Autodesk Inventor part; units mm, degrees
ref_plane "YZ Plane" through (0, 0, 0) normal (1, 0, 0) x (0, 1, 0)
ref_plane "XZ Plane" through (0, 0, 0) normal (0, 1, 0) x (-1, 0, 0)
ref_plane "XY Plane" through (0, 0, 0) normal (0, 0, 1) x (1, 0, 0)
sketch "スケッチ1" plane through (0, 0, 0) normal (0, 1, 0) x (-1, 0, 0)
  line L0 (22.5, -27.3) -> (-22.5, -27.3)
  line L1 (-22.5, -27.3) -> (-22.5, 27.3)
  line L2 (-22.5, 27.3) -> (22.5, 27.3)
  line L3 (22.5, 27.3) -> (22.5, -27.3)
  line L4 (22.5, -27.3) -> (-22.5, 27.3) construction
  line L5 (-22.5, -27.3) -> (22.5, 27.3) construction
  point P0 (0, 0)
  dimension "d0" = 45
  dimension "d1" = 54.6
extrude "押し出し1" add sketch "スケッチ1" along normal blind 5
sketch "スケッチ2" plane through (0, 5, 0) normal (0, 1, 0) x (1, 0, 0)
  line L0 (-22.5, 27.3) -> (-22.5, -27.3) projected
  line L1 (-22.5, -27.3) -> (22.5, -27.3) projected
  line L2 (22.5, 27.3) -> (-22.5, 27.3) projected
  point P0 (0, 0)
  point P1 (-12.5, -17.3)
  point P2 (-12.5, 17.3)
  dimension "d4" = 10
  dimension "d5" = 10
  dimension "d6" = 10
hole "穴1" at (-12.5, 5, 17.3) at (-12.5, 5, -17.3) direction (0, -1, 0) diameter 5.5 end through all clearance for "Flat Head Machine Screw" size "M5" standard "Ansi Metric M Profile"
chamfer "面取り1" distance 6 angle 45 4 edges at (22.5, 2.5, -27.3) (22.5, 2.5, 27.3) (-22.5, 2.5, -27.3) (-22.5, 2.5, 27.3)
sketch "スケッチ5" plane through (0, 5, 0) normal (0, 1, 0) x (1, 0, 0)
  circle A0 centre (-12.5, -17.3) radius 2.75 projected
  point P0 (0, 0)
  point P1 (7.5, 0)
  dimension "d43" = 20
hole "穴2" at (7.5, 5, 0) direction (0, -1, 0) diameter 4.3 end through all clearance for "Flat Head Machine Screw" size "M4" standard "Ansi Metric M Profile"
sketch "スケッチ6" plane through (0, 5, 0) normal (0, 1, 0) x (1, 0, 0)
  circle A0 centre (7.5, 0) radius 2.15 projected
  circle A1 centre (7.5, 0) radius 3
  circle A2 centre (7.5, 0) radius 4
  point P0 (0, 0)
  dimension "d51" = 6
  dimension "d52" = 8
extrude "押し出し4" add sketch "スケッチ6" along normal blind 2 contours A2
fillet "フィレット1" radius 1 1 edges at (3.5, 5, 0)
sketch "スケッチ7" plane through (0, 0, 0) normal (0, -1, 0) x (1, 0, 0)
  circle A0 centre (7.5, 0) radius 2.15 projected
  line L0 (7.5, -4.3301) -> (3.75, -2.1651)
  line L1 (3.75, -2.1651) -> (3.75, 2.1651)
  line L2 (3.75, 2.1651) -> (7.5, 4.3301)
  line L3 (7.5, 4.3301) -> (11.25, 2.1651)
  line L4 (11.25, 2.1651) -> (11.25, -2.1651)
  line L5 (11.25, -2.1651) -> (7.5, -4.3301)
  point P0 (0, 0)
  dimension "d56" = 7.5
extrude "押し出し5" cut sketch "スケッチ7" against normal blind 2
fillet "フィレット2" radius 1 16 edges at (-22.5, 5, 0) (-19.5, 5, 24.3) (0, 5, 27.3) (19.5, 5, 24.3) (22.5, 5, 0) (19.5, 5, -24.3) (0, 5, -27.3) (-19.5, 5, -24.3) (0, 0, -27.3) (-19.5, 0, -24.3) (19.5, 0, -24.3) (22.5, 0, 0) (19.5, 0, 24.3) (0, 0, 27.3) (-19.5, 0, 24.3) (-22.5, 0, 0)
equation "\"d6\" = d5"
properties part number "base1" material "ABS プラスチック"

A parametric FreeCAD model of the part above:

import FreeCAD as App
import Part
import Sketcher
from FreeCAD import Vector
Q = App.Units.Quantity


def edges_at(feature, points):
    """Names of the edges that pass closest to the given points."""
    edges = feature.Shape.Edges
    near = lambda p: min(range(len(edges)), key=lambda i: edges[i].distToShape(Part.Vertex(*p))[0])
    return sorted({f"Edge{near(p) + 1}" for p in points})

doc = App.newDocument("Part")
params = doc.addObject("Spreadsheet::Sheet", "Params")
for row, (alias, value) in enumerate([
    ("sketch1_width", "45 mm"),
    ("sketch1_height", "54.6 mm"),
    ("pad1_length", "5 mm"),
    ("sketch2_diameter", "5.5 mm"),
    ("hole_diameter", "5.5 mm"),
    ("chamfer_size", "6 mm"),
    ("sketch3_diameter", "4.3 mm"),
    ("hole2_diameter", "4.3 mm"),
    ("sketch4_diameter", "8 mm"),
    ("sketch4_diameter2", "6 mm"),
    ("pad2_length", "2 mm"),
    ("fillet_radius", "1 mm"),
    ("sketch5_diameter", "4.3 mm"),
    ("pocket1_length", "2 mm"),
    ("fillet2_radius", "1 mm"),
], start=1):
    params.set(f"A{row}", alias)
    params.set(f"B{row}", "=" + value)
    params.setAlias(f"B{row}", alias)

body = doc.addObject("PartDesign::Body", "Body")

# Sketch on XZ plane
sketch1 = body.newObject("Sketcher::SketchObject", "Sketch")
sketch1.AttachmentSupport = (doc.getObject("XZ_Plane"), [""])
sketch1.MapMode = "FlatFace"
sketch1.addGeometry([
    Part.LineSegment(Vector(22, -27, 0), Vector(-22, -27, 0)),
    Part.LineSegment(Vector(-22, -27, 0), Vector(-22, 27, 0)),
    Part.LineSegment(Vector(-22, 27, 0), Vector(22, 27, 0)),
    Part.LineSegment(Vector(22, 27, 0), Vector(22, -27, 0)),
], False)
sketch1.addConstraint([
    Sketcher.Constraint("Coincident", 0, 2, 1, 1),
    Sketcher.Constraint("Coincident", 1, 2, 2, 1),
    Sketcher.Constraint("Coincident", 2, 2, 3, 1),
    Sketcher.Constraint("Coincident", 3, 2, 0, 1),
    Sketcher.Constraint("Horizontal", 0),
    Sketcher.Constraint("Vertical", 1),
    Sketcher.Constraint("Horizontal", 2),
    Sketcher.Constraint("Vertical", 3),
    Sketcher.Constraint("Symmetric", 0, 2, 2, 2, -1, 1),
    Sketcher.Constraint("DistanceX", 0, 2, 0, 1, Q("45 mm")),
    Sketcher.Constraint("DistanceY", 1, 1, 1, 2, Q("54.6 mm")),
])
sketch1.setExpression("Constraints[9]", "Params.sketch1_width")
sketch1.setExpression("Constraints[10]", "Params.sketch1_height")
pad1 = body.newObject("PartDesign::Pad", "Pad")
pad1.Profile = sketch1
pad1.setExpression("Length", "Params.pad1_length")
pad1.Reversed = True

# Sketch on XZ plane
sketch2 = body.newObject("Sketcher::SketchObject", "Sketch001")
sketch2.AttachmentSupport = (doc.getObject("XZ_Plane"), [""])
sketch2.MapMode = "FlatFace"
sketch2.AttachmentOffset = App.Placement(Vector(0, 0, -5), App.Rotation())
sketch2.addGeometry([
    Part.Circle(Vector(-12.5, 17.3, 0), Vector(0, 0, 1), 2.8),
    Part.Circle(Vector(-12.5, -17.3, 0), Vector(0, 0, 1), 2.8),
], False)
sketch2.addConstraint([
    Sketcher.Constraint("Equal", 0, 1),
    Sketcher.Constraint("Symmetric", 0, 3, 1, 3, -1),
    Sketcher.Constraint("Diameter", 0, Q("5.5 mm")),
    Sketcher.Constraint("DistanceX", 0, 3, -1, 1, Q("12.5 mm")),
    Sketcher.Constraint("DistanceY", -1, 1, 0, 3, Q("17.3 mm")),
])
sketch2.setExpression("Constraints[2]", "Params.sketch2_diameter")
doc.recompute()
hole = body.newObject("PartDesign::Hole", "Hole")
hole.Profile = sketch2
hole.ThreadType = "None"
hole.setExpression("Diameter", "Params.hole_diameter")
hole.DepthType = "ThroughAll"
hole.Reversed = True
doc.recompute()

chamfer = body.newObject("PartDesign::Chamfer", "Chamfer")
chamfer.Base = (hole, edges_at(hole, [
    (22.5, 2.5, -27.3),
    (22.5, 2.5, 27.3),
    (-22.5, 2.5, -27.3),
    (-22.5, 2.5, 27.3),
]))
chamfer.setExpression("Size", "Params.chamfer_size")

# Sketch on XZ plane
sketch3 = body.newObject("Sketcher::SketchObject", "Sketch002")
sketch3.AttachmentSupport = (doc.getObject("XZ_Plane"), [""])
sketch3.MapMode = "FlatFace"
sketch3.AttachmentOffset = App.Placement(Vector(0, 0, -5), App.Rotation())
sketch3.addGeometry(Part.Circle(Vector(7.5, 0, 0), Vector(0, 0, 1), 2.1), False)
sketch3.addConstraint([
    Sketcher.Constraint("PointOnObject", 0, 3, -1),
    Sketcher.Constraint("Diameter", 0, Q("4.3 mm")),
    Sketcher.Constraint("DistanceX", -1, 1, 0, 3, Q("7.5 mm")),
])
sketch3.setExpression("Constraints[1]", "Params.sketch3_diameter")
doc.recompute()
hole2 = body.newObject("PartDesign::Hole", "Hole001")
hole2.Profile = sketch3
hole2.ThreadType = "None"
hole2.setExpression("Diameter", "Params.hole2_diameter")
hole2.DepthType = "ThroughAll"
hole2.Reversed = True

# Sketch on XZ plane
sketch4 = body.newObject("Sketcher::SketchObject", "Sketch003")
sketch4.AttachmentSupport = (doc.getObject("XZ_Plane"), [""])
sketch4.MapMode = "FlatFace"
sketch4.AttachmentOffset = App.Placement(Vector(0, 0, -5), App.Rotation())
sketch4.addGeometry([
    Part.Circle(Vector(7.5, 0, 0), Vector(0, 0, 1), 4),
    Part.Circle(Vector(7.5, 0, 0), Vector(0, 0, 1), 3),
], False)
sketch4.addConstraint([
    Sketcher.Constraint("Coincident", 1, 3, 0, 3),
    Sketcher.Constraint("PointOnObject", 0, 3, -1),
    Sketcher.Constraint("Diameter", 0, Q("8 mm")),
    Sketcher.Constraint("Diameter", 1, Q("6 mm")),
    Sketcher.Constraint("DistanceX", -1, 1, 0, 3, Q("7.5 mm")),
])
sketch4.setExpression("Constraints[2]", "Params.sketch4_diameter")
sketch4.setExpression("Constraints[3]", "Params.sketch4_diameter2")
pad2 = body.newObject("PartDesign::Pad", "Pad001")
pad2.Profile = sketch4
pad2.setExpression("Length", "Params.pad2_length")
pad2.Reversed = True
doc.recompute()

fillet = body.newObject("PartDesign::Fillet", "Fillet")
fillet.Base = (pad2, edges_at(pad2, [(3.5, 5, 0)]))
fillet.setExpression("Radius", "Params.fillet_radius")

# Sketch on XZ plane
sketch5 = body.newObject("Sketcher::SketchObject", "Sketch004")
sketch5.AttachmentSupport = (doc.getObject("XZ_Plane"), [""])
sketch5.MapMode = "FlatFace"
sketch5.addGeometry([
    Part.LineSegment(Vector(3.8, -2.2, 0), Vector(7.5, -4.3, 0)),  # 0
    Part.LineSegment(Vector(7.5, -4.3, 0), Vector(11.2, -2.2, 0)),  # 1
    Part.LineSegment(Vector(11.2, -2.2, 0), Vector(11.2, 2.2, 0)),  # 2
    Part.LineSegment(Vector(11.2, 2.2, 0), Vector(7.5, 4.3, 0)),  # 3
    Part.LineSegment(Vector(7.5, 4.3, 0), Vector(3.8, 2.2, 0)),  # 4
    Part.LineSegment(Vector(3.8, 2.2, 0), Vector(3.8, -2.2, 0)),  # 5
    Part.Circle(Vector(7.5, 0, 0), Vector(0, 0, 1), 2.1),  # 6
], False)
sketch5.addConstraint([
    Sketcher.Constraint("Coincident", 0, 2, 1, 1),
    Sketcher.Constraint("Coincident", 1, 2, 2, 1),
    Sketcher.Constraint("Coincident", 2, 2, 3, 1),
    Sketcher.Constraint("Coincident", 3, 2, 4, 1),
    Sketcher.Constraint("Coincident", 4, 2, 5, 1),
    Sketcher.Constraint("Coincident", 5, 2, 0, 1),
    Sketcher.Constraint("Vertical", 2),
    Sketcher.Constraint("Vertical", 5),
    Sketcher.Constraint("Symmetric", 0, 2, 3, 2, -1),
    Sketcher.Constraint("PointOnObject", 6, 3, -1),
    Sketcher.Constraint("Parallel", 0, 3),
    Sketcher.Constraint("Parallel", 1, 4),
    Sketcher.Constraint("Horizontal", 2, 2, 4, 2),
    Sketcher.Constraint("Horizontal", 1, 2, 5, 2),
    Sketcher.Constraint("Vertical", 6, 3, 0, 2),
    Sketcher.Constraint("Diameter", 6, Q("4.3 mm")),
    Sketcher.Constraint("DistanceX", -1, 1, 6, 3, Q("7.5 mm")),
    Sketcher.Constraint("DistanceX", 4, 2, 2, 2, Q("7.5 mm")),
    Sketcher.Constraint("Angle", 0, Q("-29.9993 deg")),
    Sketcher.Constraint("DistanceY", 0, 2, -1, 1, Q("4.33 mm")),
])
sketch5.setExpression("Constraints[15]", "Params.sketch5_diameter")
pocket1 = body.newObject("PartDesign::Pocket", "Pocket")
pocket1.Profile = sketch5
pocket1.setExpression("Length", "Params.pocket1_length")
doc.recompute()

fillet2 = body.newObject("PartDesign::Fillet", "Fillet001")
fillet2.Base = (pocket1, edges_at(pocket1, [
    (-22.5, 5, 0),
    (-19.5, 5, 24.3),
    (0, 5, 27.3),
    (19.5, 5, 24.3),
    (22.5, 5, 0),
    (19.5, 5, -24.3),
    (0, 5, -27.3),
    (-19.5, 5, -24.3),
    (0, 0, -27.3),
    (-19.5, 0, -24.3),
    (19.5, 0, -24.3),
    (22.5, 0, 0),
    (19.5, 0, 24.3),
    (0, 0, 27.3),
    (-19.5, 0, 24.3),
    (-22.5, 0, 0),
]))
fillet2.setExpression("Radius", "Params.fillet2_radius")

doc.recompute()
